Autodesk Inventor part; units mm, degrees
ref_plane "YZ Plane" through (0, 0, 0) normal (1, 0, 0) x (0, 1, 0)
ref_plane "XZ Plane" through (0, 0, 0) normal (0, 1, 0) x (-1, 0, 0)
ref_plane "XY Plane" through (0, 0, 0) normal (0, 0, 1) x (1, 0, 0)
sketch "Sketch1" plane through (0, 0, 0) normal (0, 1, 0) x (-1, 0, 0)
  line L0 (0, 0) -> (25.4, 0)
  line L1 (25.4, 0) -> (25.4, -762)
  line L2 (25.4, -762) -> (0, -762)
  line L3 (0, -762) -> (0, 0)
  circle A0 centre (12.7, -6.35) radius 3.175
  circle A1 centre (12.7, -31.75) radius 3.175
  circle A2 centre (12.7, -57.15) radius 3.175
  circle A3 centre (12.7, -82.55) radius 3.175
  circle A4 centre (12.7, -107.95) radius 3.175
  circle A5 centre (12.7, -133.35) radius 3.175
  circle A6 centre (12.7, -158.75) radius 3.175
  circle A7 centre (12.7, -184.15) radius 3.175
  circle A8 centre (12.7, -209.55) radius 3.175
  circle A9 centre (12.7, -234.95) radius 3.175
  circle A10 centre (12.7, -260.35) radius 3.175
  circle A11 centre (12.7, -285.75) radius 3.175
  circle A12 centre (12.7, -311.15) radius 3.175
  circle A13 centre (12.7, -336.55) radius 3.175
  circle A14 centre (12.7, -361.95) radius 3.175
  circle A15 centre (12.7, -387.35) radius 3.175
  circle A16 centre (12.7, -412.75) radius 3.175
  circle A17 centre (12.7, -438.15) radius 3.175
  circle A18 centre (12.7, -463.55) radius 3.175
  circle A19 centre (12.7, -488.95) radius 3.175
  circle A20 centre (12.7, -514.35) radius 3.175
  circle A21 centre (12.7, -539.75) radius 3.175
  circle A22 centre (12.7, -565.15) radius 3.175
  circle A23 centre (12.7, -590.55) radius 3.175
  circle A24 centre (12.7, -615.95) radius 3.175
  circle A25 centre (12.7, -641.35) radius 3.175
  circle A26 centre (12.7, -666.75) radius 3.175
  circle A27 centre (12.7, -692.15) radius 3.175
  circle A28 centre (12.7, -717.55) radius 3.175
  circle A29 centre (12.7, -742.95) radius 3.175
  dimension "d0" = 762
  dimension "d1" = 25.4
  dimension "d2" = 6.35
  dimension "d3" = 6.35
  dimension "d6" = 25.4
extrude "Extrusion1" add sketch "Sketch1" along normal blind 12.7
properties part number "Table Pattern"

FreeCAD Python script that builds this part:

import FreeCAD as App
import Part
import Sketcher
Q = App.Units.Quantity


def add_polygon(sketch, points):
    """Adds a closed chain of lines whose ends are joined by coincident constraints."""
    first, n = sketch.GeometryCount, len(points)
    for a, b in zip(points, points[1:] + points[:1]):
        sketch.addGeometry(Part.LineSegment(App.Vector(*a, 0), App.Vector(*b, 0)), False)
    for i in range(n):
        sketch.addConstraint(Sketcher.Constraint("Coincident", first + i, 2, first + (i + 1) % n, 1))

doc = App.newDocument("Part")
body = doc.addObject("PartDesign::Body", "Body")

# Sketch on XZ plane
sketch1 = body.newObject("Sketcher::SketchObject", "Sketch")
sketch1.AttachmentSupport = (doc.getObject("XZ_Plane"), [""])
sketch1.MapMode = "FlatFace"
add_polygon(sketch1, [(-25.4, 0), (0, 0), (0, -762), (-25.4, -762)])  # lines 0-3
sketch1.addGeometry(Part.Circle(App.Vector(-12.7, -742.95, 0), App.Vector(0, 0, 1), 3.175), False)  # 4
sketch1.addGeometry(Part.Circle(App.Vector(-12.7, -717.55, 0), App.Vector(0, 0, 1), 3.175), False)  # 5
sketch1.addGeometry(Part.Circle(App.Vector(-12.7, -692.15, 0), App.Vector(0, 0, 1), 3.175), False)  # 6
sketch1.addGeometry(Part.Circle(App.Vector(-12.7, -666.75, 0), App.Vector(0, 0, 1), 3.175), False)  # 7
sketch1.addGeometry(Part.Circle(App.Vector(-12.7, -641.35, 0), App.Vector(0, 0, 1), 3.175), False)  # 8
sketch1.addGeometry(Part.Circle(App.Vector(-12.7, -615.95, 0), App.Vector(0, 0, 1), 3.175), False)  # 9
sketch1.addGeometry(Part.Circle(App.Vector(-12.7, -590.55, 0), App.Vector(0, 0, 1), 3.175), False)  # 10
sketch1.addGeometry(Part.Circle(App.Vector(-12.7, -565.15, 0), App.Vector(0, 0, 1), 3.175), False)  # 11
sketch1.addGeometry(Part.Circle(App.Vector(-12.7, -539.75, 0), App.Vector(0, 0, 1), 3.175), False)  # 12
sketch1.addGeometry(Part.Circle(App.Vector(-12.7, -514.35, 0), App.Vector(0, 0, 1), 3.175), False)  # 13
sketch1.addGeometry(Part.Circle(App.Vector(-12.7, -488.95, 0), App.Vector(0, 0, 1), 3.175), False)  # 14
sketch1.addGeometry(Part.Circle(App.Vector(-12.7, -463.55, 0), App.Vector(0, 0, 1), 3.175), False)  # 15
sketch1.addGeometry(Part.Circle(App.Vector(-12.7, -438.15, 0), App.Vector(0, 0, 1), 3.175), False)  # 16
sketch1.addGeometry(Part.Circle(App.Vector(-12.7, -412.75, 0), App.Vector(0, 0, 1), 3.175), False)  # 17
sketch1.addGeometry(Part.Circle(App.Vector(-12.7, -387.35, 0), App.Vector(0, 0, 1), 3.175), False)  # 18
sketch1.addGeometry(Part.Circle(App.Vector(-12.7, -361.95, 0), App.Vector(0, 0, 1), 3.175), False)  # 19
sketch1.addGeometry(Part.Circle(App.Vector(-12.7, -336.55, 0), App.Vector(0, 0, 1), 3.175), False)  # 20
sketch1.addGeometry(Part.Circle(App.Vector(-12.7, -311.15, 0), App.Vector(0, 0, 1), 3.175), False)  # 21
sketch1.addGeometry(Part.Circle(App.Vector(-12.7, -285.75, 0), App.Vector(0, 0, 1), 3.175), False)  # 22
sketch1.addGeometry(Part.Circle(App.Vector(-12.7, -260.35, 0), App.Vector(0, 0, 1), 3.175), False)  # 23
sketch1.addGeometry(Part.Circle(App.Vector(-12.7, -234.95, 0), App.Vector(0, 0, 1), 3.175), False)  # 24
sketch1.addGeometry(Part.Circle(App.Vector(-12.7, -209.55, 0), App.Vector(0, 0, 1), 3.175), False)  # 25
sketch1.addGeometry(Part.Circle(App.Vector(-12.7, -184.15, 0), App.Vector(0, 0, 1), 3.175), False)  # 26
sketch1.addGeometry(Part.Circle(App.Vector(-12.7, -158.75, 0), App.Vector(0, 0, 1), 3.175), False)  # 27
sketch1.addGeometry(Part.Circle(App.Vector(-12.7, -133.35, 0), App.Vector(0, 0, 1), 3.175), False)  # 28
sketch1.addGeometry(Part.Circle(App.Vector(-12.7, -107.95, 0), App.Vector(0, 0, 1), 3.175), False)  # 29
sketch1.addGeometry(Part.Circle(App.Vector(-12.7, -82.55, 0), App.Vector(0, 0, 1), 3.175), False)  # 30
sketch1.addGeometry(Part.Circle(App.Vector(-12.7, -57.15, 0), App.Vector(0, 0, 1), 3.175), False)  # 31
sketch1.addGeometry(Part.Circle(App.Vector(-12.7, -31.75, 0), App.Vector(0, 0, 1), 3.175), False)  # 32
sketch1.addGeometry(Part.Circle(App.Vector(-12.7, -6.35, 0), App.Vector(0, 0, 1), 3.175), False)  # 33
sketch1.addConstraint([
    Sketcher.Constraint("Horizontal", 0),
    Sketcher.Constraint("Vertical", 1),
    Sketcher.Constraint("Horizontal", 2),
    Sketcher.Constraint("Vertical", 3),
    Sketcher.Constraint("Coincident", 0, 2, -1, 1),
    Sketcher.Constraint("Equal", 4, 5),
    Sketcher.Constraint("Equal", 5, 6),
    Sketcher.Constraint("Equal", 6, 7),
    Sketcher.Constraint("Equal", 7, 8),
    Sketcher.Constraint("Equal", 8, 9),
    Sketcher.Constraint("Equal", 9, 10),
    Sketcher.Constraint("Equal", 10, 11),
    Sketcher.Constraint("Equal", 11, 12),
    Sketcher.Constraint("Equal", 12, 13),
    Sketcher.Constraint("Equal", 13, 14),
    Sketcher.Constraint("Equal", 14, 15),
    Sketcher.Constraint("Equal", 15, 16),
    Sketcher.Constraint("Equal", 16, 17),
    Sketcher.Constraint("Equal", 17, 18),
    Sketcher.Constraint("Equal", 18, 19),
    Sketcher.Constraint("Equal", 19, 20),
    Sketcher.Constraint("Equal", 20, 21),
    Sketcher.Constraint("Equal", 21, 22),
    Sketcher.Constraint("Equal", 22, 23),
    Sketcher.Constraint("Equal", 23, 24),
    Sketcher.Constraint("Equal", 24, 25),
    Sketcher.Constraint("Equal", 25, 26),
    Sketcher.Constraint("Equal", 26, 27),
    Sketcher.Constraint("Equal", 27, 28),
    Sketcher.Constraint("Equal", 28, 29),
    Sketcher.Constraint("Equal", 29, 30),
    Sketcher.Constraint("Equal", 30, 31),
    Sketcher.Constraint("Equal", 31, 32),
    Sketcher.Constraint("Equal", 32, 33),
    Sketcher.Constraint("Vertical", 4, 3, 5, 3),
    Sketcher.Constraint("Vertical", 5, 3, 6, 3),
    Sketcher.Constraint("Vertical", 6, 3, 7, 3),
    Sketcher.Constraint("Vertical", 7, 3, 8, 3),
    Sketcher.Constraint("Vertical", 8, 3, 9, 3),
    Sketcher.Constraint("Vertical", 9, 3, 10, 3),
    Sketcher.Constraint("Vertical", 10, 3, 11, 3),
    Sketcher.Constraint("Vertical", 11, 3, 12, 3),
    Sketcher.Constraint("Vertical", 12, 3, 13, 3),
    Sketcher.Constraint("Vertical", 13, 3, 14, 3),
    Sketcher.Constraint("Vertical", 14, 3, 15, 3),
    Sketcher.Constraint("Vertical", 15, 3, 16, 3),
    Sketcher.Constraint("Vertical", 16, 3, 17, 3),
    Sketcher.Constraint("Vertical", 17, 3, 18, 3),
    Sketcher.Constraint("Vertical", 18, 3, 19, 3),
    Sketcher.Constraint("Vertical", 19, 3, 20, 3),
    Sketcher.Constraint("Vertical", 20, 3, 21, 3),
    Sketcher.Constraint("Vertical", 21, 3, 22, 3),
    Sketcher.Constraint("Vertical", 22, 3, 23, 3),
    Sketcher.Constraint("Vertical", 23, 3, 24, 3),
    Sketcher.Constraint("Vertical", 24, 3, 25, 3),
    Sketcher.Constraint("Vertical", 25, 3, 26, 3),
    Sketcher.Constraint("Vertical", 26, 3, 27, 3),
    Sketcher.Constraint("Vertical", 27, 3, 28, 3),
    Sketcher.Constraint("Vertical", 28, 3, 29, 3),
    Sketcher.Constraint("Vertical", 29, 3, 30, 3),
    Sketcher.Constraint("Vertical", 30, 3, 31, 3),
    Sketcher.Constraint("Vertical", 31, 3, 32, 3),
    Sketcher.Constraint("Vertical", 32, 3, 33, 3),
    Sketcher.Constraint("Diameter", 4, Q("0.25 in")),
    Sketcher.Constraint("DistanceX", 0, 1, 0, 2, Q("1 in")),
    Sketcher.Constraint("DistanceY", 1, 2, 1, 1, Q("30 in")),
    Sketcher.Constraint("DistanceY", 4, 3, 5, 3, Q("1 in")),
    Sketcher.Constraint("DistanceY", 5, 3, 6, 3, Q("1 in")),
    Sketcher.Constraint("DistanceY", 6, 3, 7, 3, Q("1 in")),
    Sketcher.Constraint("DistanceY", 7, 3, 8, 3, Q("1 in")),
    Sketcher.Constraint("DistanceY", 8, 3, 9, 3, Q("1 in")),
    Sketcher.Constraint("DistanceY", 9, 3, 10, 3, Q("1 in")),
    Sketcher.Constraint("DistanceY", 10, 3, 11, 3, Q("1 in")),
    Sketcher.Constraint("DistanceY", 11, 3, 12, 3, Q("1 in")),
    Sketcher.Constraint("DistanceY", 12, 3, 13, 3, Q("1 in")),
    Sketcher.Constraint("DistanceY", 13, 3, 14, 3, Q("1 in")),
    Sketcher.Constraint("DistanceY", 14, 3, 15, 3, Q("1 in")),
    Sketcher.Constraint("DistanceY", 15, 3, 16, 3, Q("1 in")),
    Sketcher.Constraint("DistanceY", 16, 3, 17, 3, Q("1 in")),
    Sketcher.Constraint("DistanceY", 17, 3, 18, 3, Q("1 in")),
    Sketcher.Constraint("DistanceY", 18, 3, 19, 3, Q("1 in")),
    Sketcher.Constraint("DistanceY", 19, 3, 20, 3, Q("1 in")),
    Sketcher.Constraint("DistanceY", 20, 3, 21, 3, Q("1 in")),
    Sketcher.Constraint("DistanceY", 21, 3, 22, 3, Q("1 in")),
    Sketcher.Constraint("DistanceY", 22, 3, 23, 3, Q("1 in")),
    Sketcher.Constraint("DistanceY", 23, 3, 24, 3, Q("1 in")),
    Sketcher.Constraint("DistanceY", 24, 3, 25, 3, Q("1 in")),
    Sketcher.Constraint("DistanceY", 25, 3, 26, 3, Q("1 in")),
    Sketcher.Constraint("DistanceY", 26, 3, 27, 3, Q("1 in")),
    Sketcher.Constraint("DistanceY", 27, 3, 28, 3, Q("1 in")),
    Sketcher.Constraint("DistanceY", 28, 3, 29, 3, Q("1 in")),
    Sketcher.Constraint("DistanceY", 29, 3, 30, 3, Q("1 in")),
    Sketcher.Constraint("DistanceY", 30, 3, 31, 3, Q("1 in")),
    Sketcher.Constraint("DistanceY", 31, 3, 32, 3, Q("1 in")),
    Sketcher.Constraint("DistanceY", 32, 3, 33, 3, Q("1 in")),
    Sketcher.Constraint("DistanceY", 33, 3, -1, 1, Q("0.25 in")),
    Sketcher.Constraint("DistanceX", 4, 3, -1, 1, Q("0.5 in")),
])
pad1 = body.newObject("PartDesign::Pad", "Pad")
pad1.Profile = sketch1
pad1.Length = Q("0.5 in")
pad1.Reversed = True

doc.recompute()
